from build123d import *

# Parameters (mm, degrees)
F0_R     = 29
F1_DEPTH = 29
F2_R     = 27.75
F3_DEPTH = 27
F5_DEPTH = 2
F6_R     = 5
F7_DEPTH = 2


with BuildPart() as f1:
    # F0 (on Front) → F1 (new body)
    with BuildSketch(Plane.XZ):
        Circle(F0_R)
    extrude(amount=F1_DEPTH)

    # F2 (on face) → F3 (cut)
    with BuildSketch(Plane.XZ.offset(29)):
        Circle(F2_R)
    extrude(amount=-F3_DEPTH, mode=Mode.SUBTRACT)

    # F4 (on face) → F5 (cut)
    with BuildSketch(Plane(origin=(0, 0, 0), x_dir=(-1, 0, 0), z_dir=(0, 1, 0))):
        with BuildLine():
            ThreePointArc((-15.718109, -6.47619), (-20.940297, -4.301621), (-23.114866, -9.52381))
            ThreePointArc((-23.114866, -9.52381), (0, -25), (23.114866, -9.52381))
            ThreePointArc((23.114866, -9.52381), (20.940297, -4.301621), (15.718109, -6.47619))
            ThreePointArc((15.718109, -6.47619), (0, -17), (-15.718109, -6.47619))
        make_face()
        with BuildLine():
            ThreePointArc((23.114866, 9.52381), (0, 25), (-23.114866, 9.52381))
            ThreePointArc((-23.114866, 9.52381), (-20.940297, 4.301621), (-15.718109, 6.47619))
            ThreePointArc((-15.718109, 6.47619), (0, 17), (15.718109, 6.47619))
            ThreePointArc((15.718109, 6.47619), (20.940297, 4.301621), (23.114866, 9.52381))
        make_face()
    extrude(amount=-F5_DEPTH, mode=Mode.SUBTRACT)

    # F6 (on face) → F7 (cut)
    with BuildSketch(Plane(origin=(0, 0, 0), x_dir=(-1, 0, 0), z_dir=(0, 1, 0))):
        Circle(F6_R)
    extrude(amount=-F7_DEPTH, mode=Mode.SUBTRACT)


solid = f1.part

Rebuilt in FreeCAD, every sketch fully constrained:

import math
import FreeCAD as App
import Part
import Sketcher
Q = App.Units.Quantity

doc = App.newDocument("Part")
params = doc.addObject("Spreadsheet::Sheet", "Params")
for row, (alias, value) in enumerate([
    ("sketch1_diameter", "58 mm"),
    ("pad1_length", "29 mm"),
    ("sketch2_diameter", "55.5 mm"),
    ("pocket1_length", "27 mm"),
    ("sketch3_radius", "4 mm"),
    ("sketch3_radius2", "25 mm"),
    ("pocket2_length", "2 mm"),
    ("sketch4_diameter", "10 mm"),
    ("pocket3_length", "2 mm"),
], start=1):
    params.set(f"A{row}", alias)
    params.set(f"B{row}", "=" + value)
    params.setAlias(f"B{row}", alias)

body = doc.addObject("PartDesign::Body", "Body")

# Sketch on XZ plane
sketch1 = doc.addObject("Sketcher::SketchObject", "Sketch")
body.addObject(sketch1)
sketch1.AttachmentSupport = (doc.XZ_Plane, [""])
sketch1.MapMode = "FlatFace"
sketch1.addGeometry(Part.Circle(App.Vector(0, 0, 0), App.Vector(0, 0, 1), 29), False)
sketch1.addConstraint([
    Sketcher.Constraint("Coincident", 0, 3, -1, 1),
    Sketcher.Constraint("Diameter", 0, Q("58 mm")),
])
sketch1.setExpression("Constraints[1]", "Params.sketch1_diameter")
pad1 = doc.addObject("PartDesign::Pad", "Pad")
body.addObject(pad1)
pad1.Profile = sketch1
pad1.setExpression("Length", "Params.pad1_length")

# Sketch on XZ plane
sketch2 = doc.addObject("Sketcher::SketchObject", "Sketch001")
body.addObject(sketch2)
sketch2.AttachmentSupport = (doc.XZ_Plane, [""])
sketch2.MapMode = "FlatFace"
sketch2.AttachmentOffset = App.Placement(App.Vector(0, 0, 29), App.Rotation())
sketch2.addGeometry(Part.Circle(App.Vector(0, 0, 0), App.Vector(0, 0, 1), 27.75), False)
sketch2.addConstraint([
    Sketcher.Constraint("Coincident", 0, 3, -1, 1),
    Sketcher.Constraint("Diameter", 0, Q("55.5 mm")),
])
sketch2.setExpression("Constraints[1]", "Params.sketch2_diameter")
pocket1 = doc.addObject("PartDesign::Pocket", "Pocket")
body.addObject(pocket1)
pocket1.Profile = sketch2
pocket1.setExpression("Length", "Params.pocket1_length")

# Sketch on XZ plane
sketch3 = doc.addObject("Sketcher::SketchObject", "Sketch002")
body.addObject(sketch3)
sketch3.AttachmentSupport = (doc.XZ_Plane, [""])
sketch3.MapMode = "FlatFace"
sketch3.addGeometry([
    Part.ArcOfCircle(Part.Circle(App.Vector(19.416488, -8, 0), App.Vector(0, 0, 1), 4), math.radians(-22.392699), math.radians(157.607309)),  # 0
    Part.ArcOfCircle(Part.Circle(App.Vector(0, 0, 0), App.Vector(0, 0, 1), 25), math.radians(-157.607312), math.radians(-22.392688)),  # 1
    Part.ArcOfCircle(Part.Circle(App.Vector(-19.416488, -8, 0), App.Vector(0, 0, 1), 4), math.radians(22.392691), math.radians(202.392699)),  # 2
    Part.ArcOfCircle(Part.Circle(App.Vector(0, -0.000001, 0), App.Vector(0, 0, 1), 16.999999), math.radians(-157.607315), math.radians(-22.392685)),  # 3
    Part.ArcOfCircle(Part.Circle(App.Vector(0, 0, 0), App.Vector(0, 0, 1), 25), math.radians(22.392688), math.radians(157.607312)),  # 4
    Part.ArcOfCircle(Part.Circle(App.Vector(19.416488, 8, 0), App.Vector(0, 0, 1), 4), math.radians(-157.607309), math.radians(22.392699)),  # 5
    Part.ArcOfCircle(Part.Circle(App.Vector(0, 0.000001, 0), App.Vector(0, 0, 1), 16.999999), math.radians(22.392685), math.radians(157.607315)),  # 6
    Part.ArcOfCircle(Part.Circle(App.Vector(-19.416488, 8, 0), App.Vector(0, 0, 1), 4), math.radians(157.607301), math.radians(337.607309)),  # 7
], False)
sketch3.addConstraint([
    Sketcher.Constraint("Tangent", 0, 1, 1, 2),
    Sketcher.Constraint("Tangent", 1, 1, 2, 2),
    Sketcher.Constraint("Tangent", 2, 1, 3, 1),
    Sketcher.Constraint("Tangent", 3, 2, 0, 2),
    Sketcher.Constraint("Tangent", 4, 1, 5, 2),
    Sketcher.Constraint("Tangent", 5, 1, 6, 1),
    Sketcher.Constraint("Tangent", 6, 2, 7, 2),
    Sketcher.Constraint("Tangent", 7, 1, 4, 2),
    Sketcher.Constraint("Coincident", 1, 3, -1, 1),
    Sketcher.Constraint("Coincident", 3, 3, -1, 1),
    Sketcher.Constraint("Coincident", 4, 3, -1, 1),
    Sketcher.Constraint("Coincident", 6, 3, -1, 1),
    Sketcher.Constraint("Equal", 1, 4),
    Sketcher.Constraint("Equal", 2, 5),
    Sketcher.Constraint("Horizontal", 0, 3, 2, 3),
    Sketcher.Constraint("Horizontal", 5, 3, 7, 3),
    Sketcher.Constraint("Vertical", 0, 3, 5, 3),
    Sketcher.Constraint("Radius", 0, Q("4 mm")),
    Sketcher.Constraint("Radius", 1, Q("25 mm")),
    Sketcher.Constraint("DistanceY", 0, 3, -1, 1, Q("8 mm")),
])
sketch3.setExpression("Constraints[17]", "Params.sketch3_radius")
sketch3.setExpression("Constraints[18]", "Params.sketch3_radius2")
pocket2 = doc.addObject("PartDesign::Pocket", "Pocket001")
body.addObject(pocket2)
pocket2.Profile = sketch3
pocket2.setExpression("Length", "Params.pocket2_length")
pocket2.Reversed = True

# Sketch on XZ plane
sketch4 = doc.addObject("Sketcher::SketchObject", "Sketch003")
body.addObject(sketch4)
sketch4.AttachmentSupport = (doc.XZ_Plane, [""])
sketch4.MapMode = "FlatFace"
sketch4.addGeometry(Part.Circle(App.Vector(0, 0, 0), App.Vector(0, 0, 1), 5), False)
sketch4.addConstraint([
    Sketcher.Constraint("Coincident", 0, 3, -1, 1),
    Sketcher.Constraint("Diameter", 0, Q("10 mm")),
])
sketch4.setExpression("Constraints[1]", "Params.sketch4_diameter")
pocket3 = doc.addObject("PartDesign::Pocket", "Pocket002")
body.addObject(pocket3)
pocket3.Profile = sketch4
pocket3.setExpression("Length", "Params.pocket3_length")
pocket3.Reversed = True

doc.recompute()
